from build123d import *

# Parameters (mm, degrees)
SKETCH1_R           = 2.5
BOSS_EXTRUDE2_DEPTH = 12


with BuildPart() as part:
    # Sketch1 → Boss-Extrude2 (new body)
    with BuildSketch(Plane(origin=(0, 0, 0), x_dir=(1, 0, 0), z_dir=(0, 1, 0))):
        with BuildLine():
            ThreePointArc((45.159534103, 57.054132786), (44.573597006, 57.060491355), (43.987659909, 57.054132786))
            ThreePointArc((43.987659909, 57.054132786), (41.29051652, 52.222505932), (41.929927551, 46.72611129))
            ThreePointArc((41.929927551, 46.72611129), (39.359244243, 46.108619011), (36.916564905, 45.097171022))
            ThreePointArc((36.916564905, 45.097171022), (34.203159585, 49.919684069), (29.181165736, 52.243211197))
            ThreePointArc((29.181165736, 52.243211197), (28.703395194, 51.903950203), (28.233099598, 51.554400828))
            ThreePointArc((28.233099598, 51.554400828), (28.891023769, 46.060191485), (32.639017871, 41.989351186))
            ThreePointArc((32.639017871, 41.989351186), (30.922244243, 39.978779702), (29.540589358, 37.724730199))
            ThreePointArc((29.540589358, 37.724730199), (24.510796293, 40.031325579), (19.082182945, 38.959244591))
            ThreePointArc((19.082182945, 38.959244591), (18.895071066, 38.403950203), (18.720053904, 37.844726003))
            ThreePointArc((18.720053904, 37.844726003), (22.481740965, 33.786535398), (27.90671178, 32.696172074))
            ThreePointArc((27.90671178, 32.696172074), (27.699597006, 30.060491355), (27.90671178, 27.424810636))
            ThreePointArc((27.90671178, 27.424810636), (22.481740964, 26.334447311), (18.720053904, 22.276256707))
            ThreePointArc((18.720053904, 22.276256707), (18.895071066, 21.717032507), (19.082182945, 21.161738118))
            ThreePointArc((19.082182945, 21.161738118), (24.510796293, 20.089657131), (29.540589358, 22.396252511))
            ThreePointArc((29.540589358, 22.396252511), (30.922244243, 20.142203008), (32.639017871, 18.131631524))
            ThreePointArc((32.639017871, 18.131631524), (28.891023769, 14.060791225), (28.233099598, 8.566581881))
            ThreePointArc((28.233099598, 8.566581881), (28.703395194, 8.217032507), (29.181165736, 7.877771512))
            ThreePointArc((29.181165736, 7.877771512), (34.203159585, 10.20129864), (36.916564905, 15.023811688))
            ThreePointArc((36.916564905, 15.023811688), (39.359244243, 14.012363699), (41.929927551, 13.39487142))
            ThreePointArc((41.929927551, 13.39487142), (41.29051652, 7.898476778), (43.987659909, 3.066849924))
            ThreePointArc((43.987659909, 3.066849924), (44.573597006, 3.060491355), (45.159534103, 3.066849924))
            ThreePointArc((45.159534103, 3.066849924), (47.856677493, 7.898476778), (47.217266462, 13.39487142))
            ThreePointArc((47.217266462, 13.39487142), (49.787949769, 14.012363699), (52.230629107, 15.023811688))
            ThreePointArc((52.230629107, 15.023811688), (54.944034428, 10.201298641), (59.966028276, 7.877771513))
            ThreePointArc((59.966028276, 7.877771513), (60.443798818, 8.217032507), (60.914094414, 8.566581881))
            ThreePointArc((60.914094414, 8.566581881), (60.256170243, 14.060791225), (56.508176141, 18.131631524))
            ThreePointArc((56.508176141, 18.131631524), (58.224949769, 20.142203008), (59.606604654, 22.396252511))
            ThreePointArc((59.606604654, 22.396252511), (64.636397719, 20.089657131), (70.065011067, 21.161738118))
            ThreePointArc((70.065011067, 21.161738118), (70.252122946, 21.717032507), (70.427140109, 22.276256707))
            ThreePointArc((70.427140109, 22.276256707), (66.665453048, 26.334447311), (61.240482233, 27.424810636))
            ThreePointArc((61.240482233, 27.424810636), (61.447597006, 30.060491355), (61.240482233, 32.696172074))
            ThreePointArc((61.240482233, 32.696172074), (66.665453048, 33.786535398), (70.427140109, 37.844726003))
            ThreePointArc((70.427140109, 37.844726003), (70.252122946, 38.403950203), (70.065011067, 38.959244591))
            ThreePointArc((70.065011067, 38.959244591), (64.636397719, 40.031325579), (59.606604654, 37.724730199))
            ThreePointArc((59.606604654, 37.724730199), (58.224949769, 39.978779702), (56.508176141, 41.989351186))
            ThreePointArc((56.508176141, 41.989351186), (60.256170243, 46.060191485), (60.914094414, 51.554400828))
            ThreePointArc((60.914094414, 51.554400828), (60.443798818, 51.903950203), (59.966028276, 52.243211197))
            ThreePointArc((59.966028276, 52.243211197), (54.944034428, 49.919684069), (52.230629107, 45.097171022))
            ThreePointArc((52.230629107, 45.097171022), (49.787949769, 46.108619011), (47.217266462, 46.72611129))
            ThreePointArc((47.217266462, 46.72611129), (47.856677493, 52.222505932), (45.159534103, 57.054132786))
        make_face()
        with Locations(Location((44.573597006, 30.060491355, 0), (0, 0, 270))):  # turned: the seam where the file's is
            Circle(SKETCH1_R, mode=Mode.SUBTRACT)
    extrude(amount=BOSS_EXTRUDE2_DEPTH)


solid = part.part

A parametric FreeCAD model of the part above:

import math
import FreeCAD as App
import Part
import Sketcher
from FreeCAD import Vector

doc = App.newDocument("Part")
body = doc.addObject("PartDesign::Body", "Body")

sketch1 = body.newObject("Sketcher::SketchObject", "Sketch")
sketch1.AttachmentSupport = (doc.getObject("XZ_Plane"), [""])
sketch1.MapMode = "FlatFace"
sketch1.addGeometry(Part.ArcOfCircle(Part.Circle(Vector(44.573597, -30.060492, 0), Vector(0, 0, 1), 26.999999), math.radians(-91.243495), math.radians(-88.756505)), False)
sketch1.addGeometry(Part.ArcOfCircle(Part.Circle(Vector(50.117034, -50.46393, 0), Vector(0, 0, 1), 9), math.radians(155.460959), math.radians(227.074912)), False)
sketch1.addGeometry(Part.ArcOfCircle(Part.Circle(Vector(44.573597, -30.060491, 0), Vector(0, 0, 1), 16.874), math.radians(-116.986268), math.radians(-99.013732)), False)
sketch1.addGeometry(Part.ArcOfCircle(Part.Circle(Vector(28.096022, -43.308869, 0), Vector(0, 0, 1), 9), math.radians(-83.074912), math.radians(-11.460959)), False)
sketch1.addGeometry(Part.ArcOfCircle(Part.Circle(Vector(44.573596, -30.060492, 0), Vector(0, 0, 1), 26.999999), math.radians(-127.243495), math.radians(-124.756505)), False)
sketch1.addGeometry(Part.ArcOfCircle(Part.Circle(Vector(37.065491, -49.82557, 0), Vector(0, 0, 1), 9), math.radians(119.460959), math.radians(191.074912)), False)
sketch1.addGeometry(Part.ArcOfCircle(Part.Circle(Vector(44.573597, -30.060491, 0), Vector(0, 0, 1), 16.874), math.radians(-152.986268), math.radians(-135.013732)), False)
sketch1.addGeometry(Part.ArcOfCircle(Part.Circle(Vector(23.455758, -31.093379, 0), Vector(0, 0, 1), 9), math.radians(-119.074912), math.radians(-47.460959)), False)
sketch1.addGeometry(Part.ArcOfCircle(Part.Circle(Vector(44.573596, -30.060492, 0), Vector(0, 0, 1), 26.999999), math.radians(-163.243495), math.radians(-160.756505)), False)
sketch1.addGeometry(Part.ArcOfCircle(Part.Circle(Vector(26.88179, -41.637622, 0), Vector(0, 0, 1), 9), math.radians(83.460959), math.radians(155.074912)), False)
sketch1.addGeometry(Part.ArcOfCircle(Part.Circle(Vector(44.573597, -30.060491, 0), Vector(0, 0, 1), 16.874), math.radians(171.013732), math.radians(188.986268)), False)
sketch1.addGeometry(Part.ArcOfCircle(Part.Circle(Vector(26.88179, -18.48336, 0), Vector(0, 0, 1), 9), math.radians(-155.074912), math.radians(-83.460959)), False)
sketch1.addGeometry(Part.ArcOfCircle(Part.Circle(Vector(44.573596, -30.060491, 0), Vector(0, 0, 1), 26.999999), math.radians(160.756505), math.radians(163.243495)), False)
sketch1.addGeometry(Part.ArcOfCircle(Part.Circle(Vector(23.455758, -29.027604, 0), Vector(0, 0, 1), 9), math.radians(47.460959), math.radians(119.074912)), False)
sketch1.addGeometry(Part.ArcOfCircle(Part.Circle(Vector(44.573597, -30.060491, 0), Vector(0, 0, 1), 16.874), math.radians(135.013732), math.radians(152.986268)), False)
sketch1.addGeometry(Part.ArcOfCircle(Part.Circle(Vector(37.065491, -10.295412, 0), Vector(0, 0, 1), 9), math.radians(168.925088), math.radians(240.539041)), False)
sketch1.addGeometry(Part.ArcOfCircle(Part.Circle(Vector(44.573598, -30.060493, 0), Vector(0, 0, 1), 27.000002), math.radians(124.756505), math.radians(127.243495)), False)
sketch1.addGeometry(Part.ArcOfCircle(Part.Circle(Vector(28.096022, -16.812113, 0), Vector(0, 0, 1), 9), math.radians(11.460959), math.radians(83.074912)), False)
sketch1.addGeometry(Part.ArcOfCircle(Part.Circle(Vector(44.573597, -30.060491, 0), Vector(0, 0, 1), 16.874), math.radians(99.013732), math.radians(116.986268)), False)
sketch1.addGeometry(Part.ArcOfCircle(Part.Circle(Vector(50.117034, -9.657053, 0), Vector(0, 0, 1), 9), math.radians(132.925088), math.radians(204.539041)), False)
sketch1.addGeometry(Part.ArcOfCircle(Part.Circle(Vector(44.573597, -30.06049, 0), Vector(0, 0, 1), 26.999999), math.radians(88.756505), math.radians(91.243495)), False)
sketch1.addGeometry(Part.ArcOfCircle(Part.Circle(Vector(39.03016, -9.657053, 0), Vector(0, 0, 1), 9), math.radians(-24.539041), math.radians(47.074912)), False)
sketch1.addGeometry(Part.ArcOfCircle(Part.Circle(Vector(44.573597, -30.060491, 0), Vector(0, 0, 1), 16.874), math.radians(63.013732), math.radians(80.986268)), False)
sketch1.addGeometry(Part.ArcOfCircle(Part.Circle(Vector(61.051172, -16.812113, 0), Vector(0, 0, 1), 9), math.radians(96.925088), math.radians(168.539041)), False)
sketch1.addGeometry(Part.ArcOfCircle(Part.Circle(Vector(44.573597, -30.060492, 0), Vector(0, 0, 1), 27), math.radians(52.756505), math.radians(55.243495)), False)
sketch1.addGeometry(Part.ArcOfCircle(Part.Circle(Vector(52.081703, -10.295412, 0), Vector(0, 0, 1), 9), math.radians(-60.539041), math.radians(11.074912)), False)
sketch1.addGeometry(Part.ArcOfCircle(Part.Circle(Vector(44.573597, -30.060491, 0), Vector(0, 0, 1), 16.874), math.radians(27.013732), math.radians(44.986268)), False)
sketch1.addGeometry(Part.ArcOfCircle(Part.Circle(Vector(65.691436, -29.027604, 0), Vector(0, 0, 1), 9), math.radians(60.925088), math.radians(132.539041)), False)
sketch1.addGeometry(Part.ArcOfCircle(Part.Circle(Vector(44.573596, -30.060492, 0), Vector(0, 0, 1), 27.000001), math.radians(16.756505), math.radians(19.243495)), False)
sketch1.addGeometry(Part.ArcOfCircle(Part.Circle(Vector(62.265404, -18.48336, 0), Vector(0, 0, 1), 9), math.radians(-96.539041), math.radians(-24.925088)), False)
sketch1.addGeometry(Part.ArcOfCircle(Part.Circle(Vector(44.573597, -30.060491, 0), Vector(0, 0, 1), 16.874), math.radians(-8.986268), math.radians(8.986268)), False)
sketch1.addGeometry(Part.ArcOfCircle(Part.Circle(Vector(62.265404, -41.637622, 0), Vector(0, 0, 1), 9), math.radians(24.925088), math.radians(96.539041)), False)
sketch1.addGeometry(Part.ArcOfCircle(Part.Circle(Vector(44.573596, -30.060491, 0), Vector(0, 0, 1), 27.000001), math.radians(-19.243495), math.radians(-16.756505)), False)
sketch1.addGeometry(Part.ArcOfCircle(Part.Circle(Vector(65.691436, -31.093379, 0), Vector(0, 0, 1), 9), math.radians(-132.539041), math.radians(-60.925088)), False)
sketch1.addGeometry(Part.ArcOfCircle(Part.Circle(Vector(44.573597, -30.060491, 0), Vector(0, 0, 1), 16.874), math.radians(-44.986268), math.radians(-27.013732)), False)
sketch1.addGeometry(Part.ArcOfCircle(Part.Circle(Vector(52.081703, -49.82557, 0), Vector(0, 0, 1), 9), math.radians(-11.074912), math.radians(60.539041)), False)
sketch1.addGeometry(Part.ArcOfCircle(Part.Circle(Vector(44.573598, -30.060492, 0), Vector(0, 0, 1), 26.999999), math.radians(-55.243495), math.radians(-52.756505)), False)
sketch1.addGeometry(Part.ArcOfCircle(Part.Circle(Vector(61.051172, -43.308869, 0), Vector(0, 0, 1), 9), math.radians(-168.539041), math.radians(-96.925088)), False)
sketch1.addGeometry(Part.ArcOfCircle(Part.Circle(Vector(44.573597, -30.060491, 0), Vector(0, 0, 1), 16.874), math.radians(-80.986268), math.radians(-63.013732)), False)
sketch1.addGeometry(Part.ArcOfCircle(Part.Circle(Vector(39.03016, -50.46393, 0), Vector(0, 0, 1), 9), math.radians(-47.074912), math.radians(24.539041)), False)
sketch1.addGeometry(Part.Circle(Vector(44.573597, -30.060491, 0), Vector(0, 0, 1), 2.5), False)
sketch1.addConstraint(Sketcher.Constraint("Coincident", 0, 1, 1, 2))
sketch1.addConstraint(Sketcher.Constraint("Coincident", 1, 1, 2, 2))
sketch1.addConstraint(Sketcher.Constraint("Coincident", 2, 1, 3, 2))
sketch1.addConstraint(Sketcher.Constraint("Coincident", 3, 1, 4, 2))
sketch1.addConstraint(Sketcher.Constraint("Coincident", 4, 1, 5, 2))
sketch1.addConstraint(Sketcher.Constraint("Coincident", 5, 1, 6, 2))
sketch1.addConstraint(Sketcher.Constraint("Coincident", 6, 1, 7, 2))
sketch1.addConstraint(Sketcher.Constraint("Coincident", 7, 1, 8, 2))
sketch1.addConstraint(Sketcher.Constraint("Coincident", 8, 1, 9, 2))
sketch1.addConstraint(Sketcher.Constraint("Coincident", 9, 1, 10, 2))
sketch1.addConstraint(Sketcher.Constraint("Coincident", 10, 1, 11, 2))
sketch1.addConstraint(Sketcher.Constraint("Coincident", 11, 1, 12, 2))
sketch1.addConstraint(Sketcher.Constraint("Coincident", 12, 1, 13, 2))
sketch1.addConstraint(Sketcher.Constraint("Coincident", 13, 1, 14, 2))
sketch1.addConstraint(Sketcher.Constraint("Coincident", 14, 1, 15, 2))
sketch1.addConstraint(Sketcher.Constraint("Coincident", 15, 1, 16, 2))
sketch1.addConstraint(Sketcher.Constraint("Coincident", 16, 1, 17, 2))
sketch1.addConstraint(Sketcher.Constraint("Coincident", 17, 1, 18, 2))
sketch1.addConstraint(Sketcher.Constraint("Coincident", 18, 1, 19, 2))
sketch1.addConstraint(Sketcher.Constraint("Coincident", 19, 1, 20, 2))
sketch1.addConstraint(Sketcher.Constraint("Coincident", 20, 1, 21, 2))
sketch1.addConstraint(Sketcher.Constraint("Coincident", 21, 1, 22, 2))
sketch1.addConstraint(Sketcher.Constraint("Coincident", 22, 1, 23, 2))
sketch1.addConstraint(Sketcher.Constraint("Coincident", 23, 1, 24, 2))
sketch1.addConstraint(Sketcher.Constraint("Coincident", 24, 1, 25, 2))
sketch1.addConstraint(Sketcher.Constraint("Coincident", 25, 1, 26, 2))
sketch1.addConstraint(Sketcher.Constraint("Coincident", 26, 1, 27, 2))
sketch1.addConstraint(Sketcher.Constraint("Coincident", 27, 1, 28, 2))
sketch1.addConstraint(Sketcher.Constraint("Coincident", 28, 1, 29, 2))
sketch1.addConstraint(Sketcher.Constraint("Coincident", 29, 1, 30, 2))
sketch1.addConstraint(Sketcher.Constraint("Coincident", 30, 1, 31, 2))
sketch1.addConstraint(Sketcher.Constraint("Coincident", 31, 1, 32, 2))
sketch1.addConstraint(Sketcher.Constraint("Coincident", 32, 1, 33, 2))
sketch1.addConstraint(Sketcher.Constraint("Coincident", 33, 1, 34, 2))
sketch1.addConstraint(Sketcher.Constraint("Coincident", 34, 1, 35, 2))
sketch1.addConstraint(Sketcher.Constraint("Coincident", 35, 1, 36, 2))
sketch1.addConstraint(Sketcher.Constraint("Coincident", 36, 1, 37, 2))
sketch1.addConstraint(Sketcher.Constraint("Coincident", 37, 1, 38, 2))
sketch1.addConstraint(Sketcher.Constraint("Coincident", 38, 1, 39, 2))
sketch1.addConstraint(Sketcher.Constraint("Coincident", 39, 1, 0, 2))
sketch1.addConstraint(Sketcher.Constraint("Coincident", 2, 3, 0, 3))
sketch1.addConstraint(Sketcher.Constraint("Coincident", 4, 3, 0, 3))
sketch1.addConstraint(Sketcher.Constraint("Coincident", 6, 3, 0, 3))
sketch1.addConstraint(Sketcher.Constraint("Coincident", 8, 3, 0, 3))
sketch1.addConstraint(Sketcher.Constraint("Coincident", 10, 3, 0, 3))
sketch1.addConstraint(Sketcher.Constraint("Coincident", 12, 3, 0, 3))
sketch1.addConstraint(Sketcher.Constraint("Coincident", 14, 3, 0, 3))
sketch1.addConstraint(Sketcher.Constraint("Coincident", 16, 3, 0, 3))
sketch1.addConstraint(Sketcher.Constraint("Coincident", 18, 3, 0, 3))
sketch1.addConstraint(Sketcher.Constraint("Coincident", 20, 3, 0, 3))
sketch1.addConstraint(Sketcher.Constraint("Coincident", 22, 3, 0, 3))
sketch1.addConstraint(Sketcher.Constraint("Coincident", 24, 3, 0, 3))
sketch1.addConstraint(Sketcher.Constraint("Coincident", 26, 3, 0, 3))
sketch1.addConstraint(Sketcher.Constraint("Coincident", 28, 3, 0, 3))
sketch1.addConstraint(Sketcher.Constraint("Coincident", 30, 3, 0, 3))
sketch1.addConstraint(Sketcher.Constraint("Coincident", 32, 3, 0, 3))
sketch1.addConstraint(Sketcher.Constraint("Coincident", 34, 3, 0, 3))
sketch1.addConstraint(Sketcher.Constraint("Coincident", 36, 3, 0, 3))
sketch1.addConstraint(Sketcher.Constraint("Coincident", 38, 3, 0, 3))
sketch1.addConstraint(Sketcher.Constraint("Coincident", 40, 3, 0, 3))
sketch1.addConstraint(Sketcher.Constraint("Equal", 1, 3))
sketch1.addConstraint(Sketcher.Constraint("Equal", 0, 4))
sketch1.addConstraint(Sketcher.Constraint("Equal", 3, 5))
sketch1.addConstraint(Sketcher.Constraint("Equal", 2, 6))
sketch1.addConstraint(Sketcher.Constraint("Equal", 5, 7))
sketch1.addConstraint(Sketcher.Constraint("Equal", 4, 8))
sketch1.addConstraint(Sketcher.Constraint("Equal", 7, 9))
sketch1.addConstraint(Sketcher.Constraint("Equal", 6, 10))
sketch1.addConstraint(Sketcher.Constraint("Equal", 9, 11))
sketch1.addConstraint(Sketcher.Constraint("Equal", 8, 12))
sketch1.addConstraint(Sketcher.Constraint("Equal", 11, 13))
sketch1.addConstraint(Sketcher.Constraint("Equal", 10, 14))
sketch1.addConstraint(Sketcher.Constraint("Equal", 13, 15))
sketch1.addConstraint(Sketcher.Constraint("Equal", 15, 17))
sketch1.addConstraint(Sketcher.Constraint("Equal", 14, 18))
sketch1.addConstraint(Sketcher.Constraint("Equal", 17, 19))
sketch1.addConstraint(Sketcher.Constraint("Equal", 12, 20))
sketch1.addConstraint(Sketcher.Constraint("Equal", 19, 21))
sketch1.addConstraint(Sketcher.Constraint("Equal", 18, 22))
sketch1.addConstraint(Sketcher.Constraint("Equal", 21, 23))
sketch1.addConstraint(Sketcher.Constraint("Equal", 20, 24))
sketch1.addConstraint(Sketcher.Constraint("Equal", 23, 25))
sketch1.addConstraint(Sketcher.Constraint("Equal", 22, 26))
sketch1.addConstraint(Sketcher.Constraint("Equal", 25, 27))
sketch1.addConstraint(Sketcher.Constraint("Equal", 24, 28))
sketch1.addConstraint(Sketcher.Constraint("Equal", 27, 29))
sketch1.addConstraint(Sketcher.Constraint("Equal", 26, 30))
sketch1.addConstraint(Sketcher.Constraint("Equal", 29, 31))
sketch1.addConstraint(Sketcher.Constraint("Equal", 28, 32))
sketch1.addConstraint(Sketcher.Constraint("Equal", 31, 33))
sketch1.addConstraint(Sketcher.Constraint("Equal", 30, 34))
sketch1.addConstraint(Sketcher.Constraint("Equal", 33, 35))
sketch1.addConstraint(Sketcher.Constraint("Equal", 32, 36))
sketch1.addConstraint(Sketcher.Constraint("Equal", 35, 37))
sketch1.addConstraint(Sketcher.Constraint("Equal", 34, 38))
sketch1.addConstraint(Sketcher.Constraint("Equal", 37, 39))
sketch1.addConstraint(Sketcher.Constraint("Horizontal", 19, 3, 21, 3))
sketch1.addConstraint(Sketcher.Constraint("Horizontal", 17, 3, 23, 3))
sketch1.addConstraint(Sketcher.Constraint("Horizontal", 15, 3, 25, 3))
sketch1.addConstraint(Sketcher.Constraint("Horizontal", 13, 3, 27, 3))
sketch1.addConstraint(Sketcher.Constraint("Horizontal", 11, 3, 29, 3))
sketch1.addConstraint(Sketcher.Constraint("Horizontal", 9, 3, 31, 3))
sketch1.addConstraint(Sketcher.Constraint("Horizontal", 7, 3, 33, 3))
sketch1.addConstraint(Sketcher.Constraint("Horizontal", 5, 3, 35, 3))
sketch1.addConstraint(Sketcher.Constraint("Horizontal", 3, 3, 37, 3))
sketch1.addConstraint(Sketcher.Constraint("Horizontal", 1, 3, 39, 3))
sketch1.addConstraint(Sketcher.Constraint("Horizontal", 19, 1, 20, 1))
sketch1.addConstraint(Sketcher.Constraint("Horizontal", 17, 1, 22, 1))
sketch1.addConstraint(Sketcher.Constraint("Horizontal", 16, 1, 23, 1))
sketch1.addConstraint(Sketcher.Constraint("Horizontal", 15, 1, 24, 1))
sketch1.addConstraint(Sketcher.Constraint("Horizontal", 13, 1, 26, 1))
sketch1.addConstraint(Sketcher.Constraint("Horizontal", 11, 1, 28, 1))
sketch1.addConstraint(Sketcher.Constraint("Horizontal", 9, 1, 30, 1))
sketch1.addConstraint(Sketcher.Constraint("Horizontal", 7, 1, 32, 1))
sketch1.addConstraint(Sketcher.Constraint("Horizontal", 5, 1, 34, 1))
sketch1.addConstraint(Sketcher.Constraint("Horizontal", 3, 1, 36, 1))
sketch1.addConstraint(Sketcher.Constraint("Horizontal", 1, 1, 38, 1))
sketch1.addConstraint(Sketcher.Constraint("Vertical", 9, 3, 11, 3))
sketch1.addConstraint(Sketcher.Constraint("Vertical", 7, 3, 13, 3))
sketch1.addConstraint(Sketcher.Constraint("Vertical", 5, 3, 15, 3))
sketch1.addConstraint(Sketcher.Constraint("Vertical", 3, 3, 17, 3))
sketch1.addConstraint(Sketcher.Constraint("Vertical", 1, 3, 19, 3))
sketch1.addConstraint(Sketcher.Constraint("Vertical", 9, 1, 10, 1))
sketch1.addConstraint(Sketcher.Constraint("Vertical", 7, 1, 12, 1))
sketch1.addConstraint(Sketcher.Constraint("Vertical", 5, 1, 14, 1))
sketch1.addConstraint(Sketcher.Constraint("Vertical", 3, 1, 16, 1))
sketch1.addConstraint(Sketcher.Constraint("Vertical", 1, 1, 18, 1))
sketch1.addConstraint(Sketcher.Constraint("Diameter", 40, 5.0))
sketch1.addConstraint(Sketcher.Constraint("Radius", 0, 26.999999))
sketch1.addConstraint(Sketcher.Constraint("Radius", 1, 9.0))
sketch1.addConstraint(Sketcher.Constraint("Radius", 2, 16.874))
sketch1.addConstraint(Sketcher.Constraint("DistanceX", -1, 1, 16, 3, 44.573598))
sketch1.addConstraint(Sketcher.Constraint("DistanceX", -1, 1, 4, 1, 28.2331))
sketch1.addConstraint(Sketcher.Constraint("DistanceY", 4, 1, -1, 1, 51.554401))
sketch1.addConstraint(Sketcher.Constraint("DistanceY", 1, 3, -1, 1, 50.46393))
sketch1.addConstraint(Sketcher.Constraint("DistanceX", -1, 1, 3, 3, 28.096022))
sketch1.addConstraint(Sketcher.Constraint("DistanceY", 3, 3, -1, 1, 43.308869))
sketch1.addConstraint(Sketcher.Constraint("DistanceX", -1, 1, 5, 3, 37.065491))
sketch1.addConstraint(Sketcher.Constraint("DistanceY", 7, 3, -1, 1, 31.093379))
sketch1.addConstraint(Sketcher.Constraint("DistanceX", -1, 1, 9, 3, 26.88179))
sketch1.addConstraint(Sketcher.Constraint("DistanceY", 11, 3, -1, 1, 18.48336))
sketch1.addConstraint(Sketcher.Constraint("DistanceX", -1, 1, 21, 3, 39.03016))
sketch1.addConstraint(Sketcher.Constraint("DistanceX", -1, 1, 6, 1, 29.540589))
pad1 = body.newObject("PartDesign::Pad", "Pad")
pad1.Profile = sketch1
pad1.Length = 12
pad1.Reversed = True

doc.recompute()
